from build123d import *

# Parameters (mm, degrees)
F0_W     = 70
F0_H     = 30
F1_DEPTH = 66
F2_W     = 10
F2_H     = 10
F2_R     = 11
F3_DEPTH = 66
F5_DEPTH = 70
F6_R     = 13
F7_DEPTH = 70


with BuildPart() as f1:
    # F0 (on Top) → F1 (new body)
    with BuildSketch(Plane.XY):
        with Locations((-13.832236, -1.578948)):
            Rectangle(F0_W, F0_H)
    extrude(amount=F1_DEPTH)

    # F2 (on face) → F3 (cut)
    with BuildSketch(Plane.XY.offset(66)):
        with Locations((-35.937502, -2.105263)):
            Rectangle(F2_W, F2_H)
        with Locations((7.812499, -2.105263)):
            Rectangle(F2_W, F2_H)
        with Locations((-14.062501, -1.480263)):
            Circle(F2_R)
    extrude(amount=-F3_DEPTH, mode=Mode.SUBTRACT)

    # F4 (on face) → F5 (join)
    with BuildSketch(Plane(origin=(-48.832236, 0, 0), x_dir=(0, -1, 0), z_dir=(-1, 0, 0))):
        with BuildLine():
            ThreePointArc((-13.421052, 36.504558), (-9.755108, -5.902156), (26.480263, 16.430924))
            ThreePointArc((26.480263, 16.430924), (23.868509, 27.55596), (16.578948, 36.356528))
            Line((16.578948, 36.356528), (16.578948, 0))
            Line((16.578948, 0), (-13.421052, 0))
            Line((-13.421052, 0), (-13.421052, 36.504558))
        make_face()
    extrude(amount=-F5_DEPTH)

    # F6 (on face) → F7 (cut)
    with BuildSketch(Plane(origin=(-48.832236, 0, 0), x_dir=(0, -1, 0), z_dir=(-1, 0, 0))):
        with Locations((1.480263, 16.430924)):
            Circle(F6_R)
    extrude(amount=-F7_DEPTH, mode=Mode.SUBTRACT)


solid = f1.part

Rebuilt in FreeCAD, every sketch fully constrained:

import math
import FreeCAD as App
import Part
import Sketcher
from FreeCAD import Vector
Q = App.Units.Quantity

doc = App.newDocument("Part")
body = doc.addObject("PartDesign::Body", "Body")

# Sketch on XY plane
sketch1 = body.newObject("Sketcher::SketchObject", "Sketch")
sketch1.AttachmentSupport = (doc.getObject("XY_Plane"), [""])
sketch1.MapMode = "FlatFace"
sketch1.addGeometry(Part.LineSegment(Vector(-49, 13, 0), Vector(-49, -17, 0)), False)
sketch1.addGeometry(Part.LineSegment(Vector(-49, -17, 0), Vector(21, -17, 0)), False)
sketch1.addGeometry(Part.LineSegment(Vector(21, -17, 0), Vector(21, 13, 0)), False)
sketch1.addGeometry(Part.LineSegment(Vector(21, 13, 0), Vector(-49, 13, 0)), False)
sketch1.addConstraint(Sketcher.Constraint("Coincident", 0, 2, 1, 1))
sketch1.addConstraint(Sketcher.Constraint("Coincident", 1, 2, 2, 1))
sketch1.addConstraint(Sketcher.Constraint("Coincident", 2, 2, 3, 1))
sketch1.addConstraint(Sketcher.Constraint("Coincident", 3, 2, 0, 1))
sketch1.addConstraint(Sketcher.Constraint("Vertical", 0))
sketch1.addConstraint(Sketcher.Constraint("Horizontal", 1))
sketch1.addConstraint(Sketcher.Constraint("Vertical", 2))
sketch1.addConstraint(Sketcher.Constraint("Horizontal", 3))
sketch1.addConstraint(Sketcher.Constraint("DistanceX", 1, 1, 1, 2, Q("70 mm")))
sketch1.addConstraint(Sketcher.Constraint("DistanceY", 0, 2, 0, 1, Q("30 mm")))
sketch1.addConstraint(Sketcher.Constraint("DistanceY", 0, 2, -1, 1, Q("16.578948 mm")))
sketch1.addConstraint(Sketcher.Constraint("DistanceX", 0, 2, -1, 1, Q("48.832236 mm")))
pad1 = body.newObject("PartDesign::Pad", "Pad")
pad1.Profile = sketch1
pad1.Length = 66

# Sketch on XY plane
sketch2 = body.newObject("Sketcher::SketchObject", "Sketch001")
sketch2.AttachmentSupport = (doc.getObject("XY_Plane"), [""])
sketch2.MapMode = "FlatFace"
sketch2.AttachmentOffset = App.Placement(Vector(0, 0, 66), App.Rotation())
sketch2.addGeometry(Part.LineSegment(Vector(-41, 3, 0), Vector(-41, -7, 0)), False)
sketch2.addGeometry(Part.LineSegment(Vector(-41, -7, 0), Vector(-31, -7, 0)), False)
sketch2.addGeometry(Part.LineSegment(Vector(-31, -7, 0), Vector(-31, 3, 0)), False)
sketch2.addGeometry(Part.LineSegment(Vector(-31, 3, 0), Vector(-41, 3, 0)), False)
sketch2.addGeometry(Part.LineSegment(Vector(3, 3, 0), Vector(3, -7, 0)), False)
sketch2.addGeometry(Part.LineSegment(Vector(3, -7, 0), Vector(13, -7, 0)), False)
sketch2.addGeometry(Part.LineSegment(Vector(13, -7, 0), Vector(13, 3, 0)), False)
sketch2.addGeometry(Part.LineSegment(Vector(13, 3, 0), Vector(3, 3, 0)), False)
sketch2.addGeometry(Part.Circle(Vector(-14, -1, 0), Vector(0, 0, 1), 11), False)
sketch2.addConstraint(Sketcher.Constraint("Coincident", 0, 2, 1, 1))
sketch2.addConstraint(Sketcher.Constraint("Coincident", 1, 2, 2, 1))
sketch2.addConstraint(Sketcher.Constraint("Coincident", 2, 2, 3, 1))
sketch2.addConstraint(Sketcher.Constraint("Coincident", 3, 2, 0, 1))
sketch2.addConstraint(Sketcher.Constraint("Coincident", 4, 2, 5, 1))
sketch2.addConstraint(Sketcher.Constraint("Coincident", 5, 2, 6, 1))
sketch2.addConstraint(Sketcher.Constraint("Coincident", 6, 2, 7, 1))
sketch2.addConstraint(Sketcher.Constraint("Coincident", 7, 2, 4, 1))
sketch2.addConstraint(Sketcher.Constraint("Vertical", 0))
sketch2.addConstraint(Sketcher.Constraint("Horizontal", 1))
sketch2.addConstraint(Sketcher.Constraint("Vertical", 2))
sketch2.addConstraint(Sketcher.Constraint("Horizontal", 3))
sketch2.addConstraint(Sketcher.Constraint("Vertical", 4))
sketch2.addConstraint(Sketcher.Constraint("Horizontal", 5))
sketch2.addConstraint(Sketcher.Constraint("Vertical", 6))
sketch2.addConstraint(Sketcher.Constraint("Horizontal", 7))
sketch2.addConstraint(Sketcher.Constraint("Horizontal", 1, 2, 4, 2))
sketch2.addConstraint(Sketcher.Constraint("Horizontal", 3, 2, 6, 2))
sketch2.addConstraint(Sketcher.Constraint("Equal", 3, 5))
sketch2.addConstraint(Sketcher.Constraint("Equal", 7, 0))
sketch2.addConstraint(Sketcher.Constraint("Diameter", 8, Q("22 mm")))
sketch2.addConstraint(Sketcher.Constraint("DistanceX", 1, 1, 1, 2, Q("10 mm")))
sketch2.addConstraint(Sketcher.Constraint("DistanceX", 1, 2, 4, 2, Q("33.750001 mm")))
sketch2.addConstraint(Sketcher.Constraint("DistanceX", 0, 2, 8, 3, Q("26.875001 mm")))
sketch2.addConstraint(Sketcher.Constraint("DistanceY", 0, 2, 8, 3, Q("5.625 mm")))
sketch2.addConstraint(Sketcher.Constraint("DistanceX", 8, 3, -1, 1, Q("14.062501 mm")))
sketch2.addConstraint(Sketcher.Constraint("DistanceY", 8, 3, -1, 1, Q("1.480263 mm")))
pocket1 = body.newObject("PartDesign::Pocket", "Pocket")
pocket1.Profile = sketch2
pocket1.Length = 66

# Sketch on YZ plane
sketch3 = body.newObject("Sketcher::SketchObject", "Sketch002")
sketch3.AttachmentSupport = (doc.getObject("YZ_Plane"), [""])
sketch3.MapMode = "FlatFace"
sketch3.AttachmentOffset = App.Placement(Vector(0, 0, -48.832236), App.Rotation())
sketch3.addGeometry(Part.ArcOfCircle(Part.Circle(Vector(-1, 16, 0), Vector(0, 0, 1), 25), math.radians(180), math.radians(413)), False)
sketch3.addGeometry(Part.ArcOfCircle(Part.Circle(Vector(-1, 16, 0), Vector(0, 0, 1), 25), math.radians(127), math.radians(180)), False)
sketch3.addGeometry(Part.LineSegment(Vector(-17, 36, 0), Vector(-17, 0, 0)), False)
sketch3.addGeometry(Part.LineSegment(Vector(-17, 0, 0), Vector(13, 0, 0)), False)
sketch3.addGeometry(Part.LineSegment(Vector(13, 0, 0), Vector(13, 37, 0)), False)
sketch3.addConstraint(Sketcher.Constraint("Tangent", 0, 1, 1, 2))
sketch3.addConstraint(Sketcher.Constraint("Coincident", 1, 1, 2, 1))
sketch3.addConstraint(Sketcher.Constraint("Coincident", 2, 2, 3, 1))
sketch3.addConstraint(Sketcher.Constraint("Coincident", 3, 2, 4, 1))
sketch3.addConstraint(Sketcher.Constraint("Coincident", 4, 2, 0, 2))
sketch3.addConstraint(Sketcher.Constraint("Vertical", 2))
sketch3.addConstraint(Sketcher.Constraint("Horizontal", 3))
sketch3.addConstraint(Sketcher.Constraint("Vertical", 4))
sketch3.addConstraint(Sketcher.Constraint("Equal", 0, 1))
sketch3.addConstraint(Sketcher.Constraint("PointOnObject", 2, 2, -1))
sketch3.addConstraint(Sketcher.Constraint("Horizontal", 1, 3, 0, 1))
sketch3.addConstraint(Sketcher.Constraint("Radius", 0, Q("25 mm")))
sketch3.addConstraint(Sketcher.Constraint("DistanceX", 3, 1, 3, 2, Q("30 mm")))
sketch3.addConstraint(Sketcher.Constraint("DistanceY", 4, 1, 4, 2, Q("36.504558 mm")))
sketch3.addConstraint(Sketcher.Constraint("DistanceY", 2, 2, 2, 1, Q("36.356528 mm")))
sketch3.addConstraint(Sketcher.Constraint("DistanceX", 2, 2, -1, 1, Q("16.578948 mm")))
pad2 = body.newObject("PartDesign::Pad", "Pad001")
pad2.Profile = sketch3
pad2.Length = 70

# Sketch on YZ plane
sketch4 = body.newObject("Sketcher::SketchObject", "Sketch003")
sketch4.AttachmentSupport = (doc.getObject("YZ_Plane"), [""])
sketch4.MapMode = "FlatFace"
sketch4.AttachmentOffset = App.Placement(Vector(0, 0, -48.832236), App.Rotation())
sketch4.addGeometry(Part.Circle(Vector(-1, 16, 0), Vector(0, 0, 1), 13), False)
sketch4.addConstraint(Sketcher.Constraint("Diameter", 0, Q("26 mm")))
sketch4.addConstraint(Sketcher.Constraint("DistanceX", 0, 3, -1, 1, Q("1.480263 mm")))
sketch4.addConstraint(Sketcher.Constraint("DistanceY", -1, 1, 0, 3, Q("16.430924 mm")))
pocket2 = body.newObject("PartDesign::Pocket", "Pocket001")
pocket2.Profile = sketch4
pocket2.Length = 70
pocket2.Reversed = True

doc.recompute()
